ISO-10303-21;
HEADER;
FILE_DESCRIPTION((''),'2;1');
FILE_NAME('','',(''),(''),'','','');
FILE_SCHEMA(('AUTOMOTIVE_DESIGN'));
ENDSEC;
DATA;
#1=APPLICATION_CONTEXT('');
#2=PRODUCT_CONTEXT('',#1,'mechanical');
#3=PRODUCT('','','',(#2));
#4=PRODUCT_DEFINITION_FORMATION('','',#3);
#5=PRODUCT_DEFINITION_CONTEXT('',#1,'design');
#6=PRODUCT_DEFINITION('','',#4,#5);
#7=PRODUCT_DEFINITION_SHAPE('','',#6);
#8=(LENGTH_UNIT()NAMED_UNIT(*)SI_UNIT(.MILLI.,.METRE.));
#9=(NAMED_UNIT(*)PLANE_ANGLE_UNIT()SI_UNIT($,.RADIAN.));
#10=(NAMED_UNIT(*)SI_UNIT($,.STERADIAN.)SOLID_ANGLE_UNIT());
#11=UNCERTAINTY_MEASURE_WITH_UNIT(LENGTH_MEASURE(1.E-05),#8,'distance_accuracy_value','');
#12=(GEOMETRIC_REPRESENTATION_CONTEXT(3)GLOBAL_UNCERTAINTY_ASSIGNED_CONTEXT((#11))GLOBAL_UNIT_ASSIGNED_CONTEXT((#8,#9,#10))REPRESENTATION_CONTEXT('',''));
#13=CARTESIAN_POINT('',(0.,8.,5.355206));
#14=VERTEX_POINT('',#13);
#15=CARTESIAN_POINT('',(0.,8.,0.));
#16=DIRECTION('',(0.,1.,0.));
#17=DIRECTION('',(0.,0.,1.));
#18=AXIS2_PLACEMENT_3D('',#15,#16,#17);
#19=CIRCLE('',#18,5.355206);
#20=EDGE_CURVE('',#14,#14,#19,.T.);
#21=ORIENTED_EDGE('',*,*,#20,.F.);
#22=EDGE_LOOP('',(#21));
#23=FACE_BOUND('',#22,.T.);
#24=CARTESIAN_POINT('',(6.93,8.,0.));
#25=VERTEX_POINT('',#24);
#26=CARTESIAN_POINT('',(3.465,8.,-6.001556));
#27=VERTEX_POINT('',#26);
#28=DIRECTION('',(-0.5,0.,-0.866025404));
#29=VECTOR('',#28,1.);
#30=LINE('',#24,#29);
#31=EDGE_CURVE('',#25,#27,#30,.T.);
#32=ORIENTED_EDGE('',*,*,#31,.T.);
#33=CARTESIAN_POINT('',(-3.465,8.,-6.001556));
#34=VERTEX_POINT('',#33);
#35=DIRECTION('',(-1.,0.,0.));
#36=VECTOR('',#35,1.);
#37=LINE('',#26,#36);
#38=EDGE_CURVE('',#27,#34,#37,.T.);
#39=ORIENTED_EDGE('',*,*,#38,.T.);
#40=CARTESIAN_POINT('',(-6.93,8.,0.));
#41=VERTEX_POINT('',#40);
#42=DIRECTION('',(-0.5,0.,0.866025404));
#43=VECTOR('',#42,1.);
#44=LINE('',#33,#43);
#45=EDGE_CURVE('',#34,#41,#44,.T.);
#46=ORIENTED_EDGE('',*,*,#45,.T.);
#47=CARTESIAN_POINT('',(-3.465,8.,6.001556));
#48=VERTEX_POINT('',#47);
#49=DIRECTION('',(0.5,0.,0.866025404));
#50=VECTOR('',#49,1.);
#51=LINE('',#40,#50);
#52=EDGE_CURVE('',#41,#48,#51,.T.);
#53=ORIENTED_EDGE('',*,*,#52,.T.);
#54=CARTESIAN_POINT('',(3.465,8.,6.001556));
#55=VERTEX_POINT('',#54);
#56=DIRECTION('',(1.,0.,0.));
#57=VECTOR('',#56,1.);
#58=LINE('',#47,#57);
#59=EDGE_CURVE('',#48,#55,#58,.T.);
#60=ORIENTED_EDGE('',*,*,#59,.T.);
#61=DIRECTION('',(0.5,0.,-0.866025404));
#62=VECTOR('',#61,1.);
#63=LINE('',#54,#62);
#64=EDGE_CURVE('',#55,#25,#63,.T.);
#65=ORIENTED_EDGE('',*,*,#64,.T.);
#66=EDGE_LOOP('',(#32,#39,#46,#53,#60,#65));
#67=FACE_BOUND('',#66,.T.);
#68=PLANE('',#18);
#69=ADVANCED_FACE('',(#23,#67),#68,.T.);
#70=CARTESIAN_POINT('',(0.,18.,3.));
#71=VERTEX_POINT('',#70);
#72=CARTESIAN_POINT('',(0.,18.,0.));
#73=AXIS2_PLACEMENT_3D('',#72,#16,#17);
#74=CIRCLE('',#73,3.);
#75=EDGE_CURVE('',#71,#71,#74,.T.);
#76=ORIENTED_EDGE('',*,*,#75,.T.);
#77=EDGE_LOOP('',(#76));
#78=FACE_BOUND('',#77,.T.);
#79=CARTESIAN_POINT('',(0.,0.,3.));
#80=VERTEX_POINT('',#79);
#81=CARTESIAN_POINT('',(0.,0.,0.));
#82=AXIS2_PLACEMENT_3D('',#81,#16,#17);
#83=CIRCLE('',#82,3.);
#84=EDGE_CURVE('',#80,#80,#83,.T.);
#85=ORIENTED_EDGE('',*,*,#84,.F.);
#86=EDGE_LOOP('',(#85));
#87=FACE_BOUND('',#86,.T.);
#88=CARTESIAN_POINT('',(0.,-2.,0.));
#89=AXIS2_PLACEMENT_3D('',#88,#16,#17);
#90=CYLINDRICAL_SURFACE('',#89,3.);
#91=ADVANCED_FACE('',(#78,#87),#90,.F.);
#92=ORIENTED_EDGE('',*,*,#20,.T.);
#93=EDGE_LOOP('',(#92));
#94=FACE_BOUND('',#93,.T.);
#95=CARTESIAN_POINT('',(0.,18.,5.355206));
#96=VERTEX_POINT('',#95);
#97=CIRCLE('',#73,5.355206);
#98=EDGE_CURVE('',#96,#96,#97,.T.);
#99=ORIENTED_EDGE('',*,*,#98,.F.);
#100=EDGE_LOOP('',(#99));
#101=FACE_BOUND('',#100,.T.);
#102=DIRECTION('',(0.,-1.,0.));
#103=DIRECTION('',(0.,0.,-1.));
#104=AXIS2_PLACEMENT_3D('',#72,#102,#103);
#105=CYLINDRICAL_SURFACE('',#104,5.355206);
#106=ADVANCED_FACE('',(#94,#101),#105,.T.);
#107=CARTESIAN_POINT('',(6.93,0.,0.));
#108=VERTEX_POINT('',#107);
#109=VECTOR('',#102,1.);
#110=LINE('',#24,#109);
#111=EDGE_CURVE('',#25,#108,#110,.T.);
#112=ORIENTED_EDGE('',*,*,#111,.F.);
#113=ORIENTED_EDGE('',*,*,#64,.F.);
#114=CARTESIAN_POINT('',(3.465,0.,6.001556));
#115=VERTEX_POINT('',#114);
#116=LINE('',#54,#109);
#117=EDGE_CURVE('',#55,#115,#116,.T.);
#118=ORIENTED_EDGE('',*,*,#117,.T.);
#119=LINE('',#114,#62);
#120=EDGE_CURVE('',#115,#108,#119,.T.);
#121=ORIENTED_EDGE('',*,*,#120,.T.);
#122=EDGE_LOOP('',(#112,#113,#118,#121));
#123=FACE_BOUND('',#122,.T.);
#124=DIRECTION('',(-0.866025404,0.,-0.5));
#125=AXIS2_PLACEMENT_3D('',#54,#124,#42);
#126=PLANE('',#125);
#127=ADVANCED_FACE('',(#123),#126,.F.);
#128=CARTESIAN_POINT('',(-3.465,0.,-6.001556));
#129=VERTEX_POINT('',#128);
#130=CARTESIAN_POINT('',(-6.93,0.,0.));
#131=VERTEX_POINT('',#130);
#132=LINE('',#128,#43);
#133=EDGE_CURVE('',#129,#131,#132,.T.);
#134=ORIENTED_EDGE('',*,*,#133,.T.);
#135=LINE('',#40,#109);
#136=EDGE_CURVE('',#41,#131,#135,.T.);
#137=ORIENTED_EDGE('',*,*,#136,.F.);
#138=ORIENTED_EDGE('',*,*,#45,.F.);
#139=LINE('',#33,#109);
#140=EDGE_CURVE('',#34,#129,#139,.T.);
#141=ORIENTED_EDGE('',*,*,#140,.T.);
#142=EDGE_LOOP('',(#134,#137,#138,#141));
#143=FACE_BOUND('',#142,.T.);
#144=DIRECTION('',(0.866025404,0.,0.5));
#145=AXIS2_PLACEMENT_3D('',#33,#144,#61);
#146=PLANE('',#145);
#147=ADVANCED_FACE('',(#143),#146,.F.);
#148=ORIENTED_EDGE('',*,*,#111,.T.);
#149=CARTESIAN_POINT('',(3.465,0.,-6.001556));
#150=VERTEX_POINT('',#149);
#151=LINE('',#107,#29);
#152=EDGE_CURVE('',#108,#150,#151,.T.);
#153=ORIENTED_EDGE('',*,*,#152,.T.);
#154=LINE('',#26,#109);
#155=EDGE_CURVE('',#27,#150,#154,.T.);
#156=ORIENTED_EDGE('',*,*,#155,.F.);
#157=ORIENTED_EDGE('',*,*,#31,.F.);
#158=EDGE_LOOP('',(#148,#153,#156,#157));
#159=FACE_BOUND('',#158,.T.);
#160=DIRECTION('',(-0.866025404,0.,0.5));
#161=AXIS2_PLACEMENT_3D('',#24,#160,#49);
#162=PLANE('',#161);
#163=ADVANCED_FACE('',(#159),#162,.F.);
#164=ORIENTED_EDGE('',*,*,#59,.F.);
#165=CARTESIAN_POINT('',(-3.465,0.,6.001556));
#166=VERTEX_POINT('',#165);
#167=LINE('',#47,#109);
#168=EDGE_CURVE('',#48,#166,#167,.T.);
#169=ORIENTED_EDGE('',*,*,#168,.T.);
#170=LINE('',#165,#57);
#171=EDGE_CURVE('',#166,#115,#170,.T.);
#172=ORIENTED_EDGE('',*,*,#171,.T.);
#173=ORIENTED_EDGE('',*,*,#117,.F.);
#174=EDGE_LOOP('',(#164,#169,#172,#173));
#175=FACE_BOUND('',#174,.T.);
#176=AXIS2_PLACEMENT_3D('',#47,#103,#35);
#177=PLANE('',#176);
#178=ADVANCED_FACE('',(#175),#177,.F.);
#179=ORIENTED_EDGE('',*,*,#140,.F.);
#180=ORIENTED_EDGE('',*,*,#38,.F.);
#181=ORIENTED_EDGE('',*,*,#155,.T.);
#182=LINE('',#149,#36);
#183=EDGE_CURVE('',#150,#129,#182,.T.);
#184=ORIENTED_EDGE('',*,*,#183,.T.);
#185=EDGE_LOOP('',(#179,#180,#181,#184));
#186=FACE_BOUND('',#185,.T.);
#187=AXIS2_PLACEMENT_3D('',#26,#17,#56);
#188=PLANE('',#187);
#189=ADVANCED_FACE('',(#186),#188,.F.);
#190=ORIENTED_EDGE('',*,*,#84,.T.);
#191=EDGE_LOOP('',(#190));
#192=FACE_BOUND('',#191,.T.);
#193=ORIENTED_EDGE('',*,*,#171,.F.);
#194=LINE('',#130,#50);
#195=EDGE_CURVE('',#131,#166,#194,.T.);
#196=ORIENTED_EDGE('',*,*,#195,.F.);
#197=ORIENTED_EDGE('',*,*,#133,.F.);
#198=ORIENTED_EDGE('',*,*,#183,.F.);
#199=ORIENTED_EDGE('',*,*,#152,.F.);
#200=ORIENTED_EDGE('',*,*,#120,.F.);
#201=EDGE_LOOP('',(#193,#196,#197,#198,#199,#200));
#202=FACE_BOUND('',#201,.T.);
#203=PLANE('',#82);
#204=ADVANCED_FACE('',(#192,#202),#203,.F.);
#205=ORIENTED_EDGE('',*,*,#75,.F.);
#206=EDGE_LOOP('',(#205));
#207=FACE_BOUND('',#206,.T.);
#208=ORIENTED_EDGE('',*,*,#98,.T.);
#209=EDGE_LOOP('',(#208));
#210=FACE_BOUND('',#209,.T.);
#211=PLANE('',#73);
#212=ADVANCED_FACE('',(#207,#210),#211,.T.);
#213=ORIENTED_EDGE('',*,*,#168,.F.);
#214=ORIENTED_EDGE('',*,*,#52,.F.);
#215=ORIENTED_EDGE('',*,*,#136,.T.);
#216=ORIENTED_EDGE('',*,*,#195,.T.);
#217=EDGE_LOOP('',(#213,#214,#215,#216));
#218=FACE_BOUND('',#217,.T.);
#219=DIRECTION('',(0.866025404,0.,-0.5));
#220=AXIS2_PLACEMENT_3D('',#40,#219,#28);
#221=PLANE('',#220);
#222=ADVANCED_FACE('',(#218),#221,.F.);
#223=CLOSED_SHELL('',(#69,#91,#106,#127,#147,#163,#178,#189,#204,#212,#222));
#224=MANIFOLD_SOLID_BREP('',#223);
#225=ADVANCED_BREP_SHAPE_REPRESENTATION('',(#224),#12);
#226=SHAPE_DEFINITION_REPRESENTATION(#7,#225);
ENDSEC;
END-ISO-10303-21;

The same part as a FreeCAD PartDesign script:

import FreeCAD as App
import Part
import Sketcher
from FreeCAD import Vector
Q = App.Units.Quantity

doc = App.newDocument("Part")
body = doc.addObject("PartDesign::Body", "Body")

# Sketch on XZ plane
sketch1 = doc.addObject("Sketcher::SketchObject", "Sketch")
body.addObject(sketch1)
sketch1.AttachmentSupport = (doc.XZ_Plane, [""])
sketch1.MapMode = "FlatFace"
sketch1.addGeometry([
    Part.LineSegment(Vector(3.465, -6.001556, 0), Vector(-3.465, -6.001556, 0)),  # 0
    Part.LineSegment(Vector(-3.465, -6.001556, 0), Vector(-6.93, 0, 0)),  # 1
    Part.LineSegment(Vector(-6.93, 0, 0), Vector(-3.465, 6.001556, 0)),  # 2
    Part.LineSegment(Vector(-3.465, 6.001556, 0), Vector(3.465, 6.001556, 0)),  # 3
    Part.LineSegment(Vector(3.465, 6.001556, 0), Vector(6.93, 0, 0)),  # 4
    Part.LineSegment(Vector(6.93, 0, 0), Vector(3.465, -6.001556, 0)),  # 5
], False)
sketch1.addConstraint([
    Sketcher.Constraint("Coincident", 0, 2, 1, 1),
    Sketcher.Constraint("Coincident", 1, 2, 2, 1),
    Sketcher.Constraint("Coincident", 2, 2, 3, 1),
    Sketcher.Constraint("Coincident", 3, 2, 4, 1),
    Sketcher.Constraint("Coincident", 4, 2, 5, 1),
    Sketcher.Constraint("Coincident", 5, 2, 0, 1),
    Sketcher.Constraint("Horizontal", 0),
    Sketcher.Constraint("Horizontal", 3),
    Sketcher.Constraint("Symmetric", 0, 2, 3, 2, -1, 1),
    Sketcher.Constraint("Symmetric", 1, 2, 4, 2, -1, 1),
    Sketcher.Constraint("PointOnObject", 1, 2, -1),
    Sketcher.Constraint("Parallel", 2, 5),
    Sketcher.Constraint("Vertical", 0, 2, 2, 2),
    Sketcher.Constraint("Angle", 1, Q("120 deg")),
    Sketcher.Constraint("DistanceX", 0, 2, 0, 1, Q("6.93 mm")),
    Sketcher.Constraint("Distance", 1, Q("6.93 mm")),
])
pad1 = doc.addObject("PartDesign::Pad", "Pad")
body.addObject(pad1)
pad1.Profile = sketch1
pad1.Length = 8
pad1.Reversed = True

# Sketch on XZ plane
sketch2 = doc.addObject("Sketcher::SketchObject", "Sketch001")
body.addObject(sketch2)
sketch2.AttachmentSupport = (doc.XZ_Plane, [""])
sketch2.MapMode = "FlatFace"
sketch2.AttachmentOffset = App.Placement(Vector(0, 0, -8), App.Rotation())
sketch2.addGeometry(Part.Circle(Vector(0, 0, 0), Vector(0, 0, 1), 5.355206), False)
sketch2.addConstraint([
    Sketcher.Constraint("Coincident", 0, 3, -1, 1),
    Sketcher.Constraint("Diameter", 0, Q("10.710413 mm")),
])
pad2 = doc.addObject("PartDesign::Pad", "Pad001")
body.addObject(pad2)
pad2.Profile = sketch2
pad2.Length = 10
pad2.Reversed = True

# Sketch on XZ plane
sketch3 = doc.addObject("Sketcher::SketchObject", "Sketch002")
body.addObject(sketch3)
sketch3.AttachmentSupport = (doc.XZ_Plane, [""])
sketch3.MapMode = "FlatFace"
sketch3.AttachmentOffset = App.Placement(Vector(0, 0, -18), App.Rotation())
sketch3.addGeometry(Part.Circle(Vector(0, 0, 0), Vector(0, 0, 1), 3), False)
sketch3.addConstraint([
    Sketcher.Constraint("Coincident", 0, 3, -1, 1),
    Sketcher.Constraint("Diameter", 0, Q("6 mm")),
])
pocket1 = doc.addObject("PartDesign::Pocket", "Pocket")
body.addObject(pocket1)
pocket1.Profile = sketch3
pocket1.Length = 20
pocket1.Reversed = True

doc.recompute()
